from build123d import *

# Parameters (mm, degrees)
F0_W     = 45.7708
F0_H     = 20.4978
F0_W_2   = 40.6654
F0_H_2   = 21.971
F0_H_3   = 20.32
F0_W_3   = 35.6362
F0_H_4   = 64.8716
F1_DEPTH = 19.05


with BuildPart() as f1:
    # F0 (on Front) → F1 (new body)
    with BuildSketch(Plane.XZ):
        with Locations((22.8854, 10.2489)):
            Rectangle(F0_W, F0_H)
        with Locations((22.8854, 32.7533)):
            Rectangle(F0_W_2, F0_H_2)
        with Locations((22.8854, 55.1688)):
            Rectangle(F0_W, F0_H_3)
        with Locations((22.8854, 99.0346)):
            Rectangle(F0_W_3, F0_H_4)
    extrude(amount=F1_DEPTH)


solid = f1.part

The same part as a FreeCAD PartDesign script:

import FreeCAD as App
import Part
import Sketcher
from FreeCAD import Vector
Q = App.Units.Quantity


def add_polygon(sketch, points):
    """Adds a closed chain of lines whose ends are joined by coincident constraints."""
    first, n = sketch.GeometryCount, len(points)
    for a, b in zip(points, points[1:] + points[:1]):
        sketch.addGeometry(Part.LineSegment(App.Vector(*a, 0), App.Vector(*b, 0)), False)
    for i in range(n):
        sketch.addConstraint(Sketcher.Constraint("Coincident", first + i, 2, first + (i + 1) % n, 1))

doc = App.newDocument("Part")
body = doc.addObject("PartDesign::Body", "Body")
body.AllowCompound = True

sketch1 = body.newObject("Sketcher::SketchObject", "Sketch")
sketch1.AttachmentSupport = (doc.getObject("XZ_Plane"), [""])
sketch1.MapMode = "FlatFace"
add_polygon(sketch1, [(0, 20), (0, 0), (46, 0), (46, 20)])
add_polygon(sketch1, [(3, 44), (3, 22), (43, 22), (43, 44)])
add_polygon(sketch1, [(0, 65), (0, 45), (46, 45), (46, 65)])
add_polygon(sketch1, [(5, 131), (5, 67), (41, 67), (41, 131)])
sketch1.addConstraint([
    Sketcher.Constraint("Vertical", 0),
    Sketcher.Constraint("Horizontal", 1),
    Sketcher.Constraint("Vertical", 2),
    Sketcher.Constraint("Horizontal", 3),
    Sketcher.Constraint("Vertical", 4),
    Sketcher.Constraint("Horizontal", 5),
    Sketcher.Constraint("Vertical", 6),
    Sketcher.Constraint("Horizontal", 7),
    Sketcher.Constraint("Vertical", 8),
    Sketcher.Constraint("Horizontal", 9),
    Sketcher.Constraint("Vertical", 10),
    Sketcher.Constraint("Horizontal", 11),
    Sketcher.Constraint("Vertical", 12),
    Sketcher.Constraint("Horizontal", 13),
    Sketcher.Constraint("Vertical", 14),
    Sketcher.Constraint("Horizontal", 15),
    Sketcher.Constraint("Coincident", 0, 2, -1, 1),
    Sketcher.Constraint("PointOnObject", 8, 2, -2),
    Sketcher.Constraint("Vertical", 2, 2, 9, 2),
    Sketcher.Constraint("DistanceY", 8, 2, 8, 1, Q("0.8 in")),
    Sketcher.Constraint("DistanceY", 7, 2, 12, 2, Q("0.9 in")),
    Sketcher.Constraint("DistanceX", 1, 1, 1, 2, Q("1.802 in")),
    Sketcher.Constraint("DistanceX", 5, 1, 5, 2, Q("1.601 in")),
    Sketcher.Constraint("DistanceX", 13, 1, 13, 2, Q("1.403 in")),
    Sketcher.Constraint("DistanceY", 0, 2, 0, 1, Q("0.807 in")),
    Sketcher.Constraint("DistanceY", 4, 2, 4, 1, Q("0.865 in")),
    Sketcher.Constraint("DistanceY", 12, 2, 12, 1, Q("2.554 in")),
    Sketcher.Constraint("DistanceY", 3, 2, 4, 2, Q("0.05 in")),
    Sketcher.Constraint("DistanceY", 7, 2, 8, 2, Q("0.05 in")),
    Sketcher.Constraint("DistanceX", 7, 2, 12, 2, Q("0.099 in")),
    Sketcher.Constraint("DistanceX", -1, 1, 4, 2, Q("0.1005 in")),
])
pad1 = body.newObject("PartDesign::Pad", "Pad")
pad1.Profile = sketch1
pad1.Length = Q("0.75 in")

doc.recompute()
